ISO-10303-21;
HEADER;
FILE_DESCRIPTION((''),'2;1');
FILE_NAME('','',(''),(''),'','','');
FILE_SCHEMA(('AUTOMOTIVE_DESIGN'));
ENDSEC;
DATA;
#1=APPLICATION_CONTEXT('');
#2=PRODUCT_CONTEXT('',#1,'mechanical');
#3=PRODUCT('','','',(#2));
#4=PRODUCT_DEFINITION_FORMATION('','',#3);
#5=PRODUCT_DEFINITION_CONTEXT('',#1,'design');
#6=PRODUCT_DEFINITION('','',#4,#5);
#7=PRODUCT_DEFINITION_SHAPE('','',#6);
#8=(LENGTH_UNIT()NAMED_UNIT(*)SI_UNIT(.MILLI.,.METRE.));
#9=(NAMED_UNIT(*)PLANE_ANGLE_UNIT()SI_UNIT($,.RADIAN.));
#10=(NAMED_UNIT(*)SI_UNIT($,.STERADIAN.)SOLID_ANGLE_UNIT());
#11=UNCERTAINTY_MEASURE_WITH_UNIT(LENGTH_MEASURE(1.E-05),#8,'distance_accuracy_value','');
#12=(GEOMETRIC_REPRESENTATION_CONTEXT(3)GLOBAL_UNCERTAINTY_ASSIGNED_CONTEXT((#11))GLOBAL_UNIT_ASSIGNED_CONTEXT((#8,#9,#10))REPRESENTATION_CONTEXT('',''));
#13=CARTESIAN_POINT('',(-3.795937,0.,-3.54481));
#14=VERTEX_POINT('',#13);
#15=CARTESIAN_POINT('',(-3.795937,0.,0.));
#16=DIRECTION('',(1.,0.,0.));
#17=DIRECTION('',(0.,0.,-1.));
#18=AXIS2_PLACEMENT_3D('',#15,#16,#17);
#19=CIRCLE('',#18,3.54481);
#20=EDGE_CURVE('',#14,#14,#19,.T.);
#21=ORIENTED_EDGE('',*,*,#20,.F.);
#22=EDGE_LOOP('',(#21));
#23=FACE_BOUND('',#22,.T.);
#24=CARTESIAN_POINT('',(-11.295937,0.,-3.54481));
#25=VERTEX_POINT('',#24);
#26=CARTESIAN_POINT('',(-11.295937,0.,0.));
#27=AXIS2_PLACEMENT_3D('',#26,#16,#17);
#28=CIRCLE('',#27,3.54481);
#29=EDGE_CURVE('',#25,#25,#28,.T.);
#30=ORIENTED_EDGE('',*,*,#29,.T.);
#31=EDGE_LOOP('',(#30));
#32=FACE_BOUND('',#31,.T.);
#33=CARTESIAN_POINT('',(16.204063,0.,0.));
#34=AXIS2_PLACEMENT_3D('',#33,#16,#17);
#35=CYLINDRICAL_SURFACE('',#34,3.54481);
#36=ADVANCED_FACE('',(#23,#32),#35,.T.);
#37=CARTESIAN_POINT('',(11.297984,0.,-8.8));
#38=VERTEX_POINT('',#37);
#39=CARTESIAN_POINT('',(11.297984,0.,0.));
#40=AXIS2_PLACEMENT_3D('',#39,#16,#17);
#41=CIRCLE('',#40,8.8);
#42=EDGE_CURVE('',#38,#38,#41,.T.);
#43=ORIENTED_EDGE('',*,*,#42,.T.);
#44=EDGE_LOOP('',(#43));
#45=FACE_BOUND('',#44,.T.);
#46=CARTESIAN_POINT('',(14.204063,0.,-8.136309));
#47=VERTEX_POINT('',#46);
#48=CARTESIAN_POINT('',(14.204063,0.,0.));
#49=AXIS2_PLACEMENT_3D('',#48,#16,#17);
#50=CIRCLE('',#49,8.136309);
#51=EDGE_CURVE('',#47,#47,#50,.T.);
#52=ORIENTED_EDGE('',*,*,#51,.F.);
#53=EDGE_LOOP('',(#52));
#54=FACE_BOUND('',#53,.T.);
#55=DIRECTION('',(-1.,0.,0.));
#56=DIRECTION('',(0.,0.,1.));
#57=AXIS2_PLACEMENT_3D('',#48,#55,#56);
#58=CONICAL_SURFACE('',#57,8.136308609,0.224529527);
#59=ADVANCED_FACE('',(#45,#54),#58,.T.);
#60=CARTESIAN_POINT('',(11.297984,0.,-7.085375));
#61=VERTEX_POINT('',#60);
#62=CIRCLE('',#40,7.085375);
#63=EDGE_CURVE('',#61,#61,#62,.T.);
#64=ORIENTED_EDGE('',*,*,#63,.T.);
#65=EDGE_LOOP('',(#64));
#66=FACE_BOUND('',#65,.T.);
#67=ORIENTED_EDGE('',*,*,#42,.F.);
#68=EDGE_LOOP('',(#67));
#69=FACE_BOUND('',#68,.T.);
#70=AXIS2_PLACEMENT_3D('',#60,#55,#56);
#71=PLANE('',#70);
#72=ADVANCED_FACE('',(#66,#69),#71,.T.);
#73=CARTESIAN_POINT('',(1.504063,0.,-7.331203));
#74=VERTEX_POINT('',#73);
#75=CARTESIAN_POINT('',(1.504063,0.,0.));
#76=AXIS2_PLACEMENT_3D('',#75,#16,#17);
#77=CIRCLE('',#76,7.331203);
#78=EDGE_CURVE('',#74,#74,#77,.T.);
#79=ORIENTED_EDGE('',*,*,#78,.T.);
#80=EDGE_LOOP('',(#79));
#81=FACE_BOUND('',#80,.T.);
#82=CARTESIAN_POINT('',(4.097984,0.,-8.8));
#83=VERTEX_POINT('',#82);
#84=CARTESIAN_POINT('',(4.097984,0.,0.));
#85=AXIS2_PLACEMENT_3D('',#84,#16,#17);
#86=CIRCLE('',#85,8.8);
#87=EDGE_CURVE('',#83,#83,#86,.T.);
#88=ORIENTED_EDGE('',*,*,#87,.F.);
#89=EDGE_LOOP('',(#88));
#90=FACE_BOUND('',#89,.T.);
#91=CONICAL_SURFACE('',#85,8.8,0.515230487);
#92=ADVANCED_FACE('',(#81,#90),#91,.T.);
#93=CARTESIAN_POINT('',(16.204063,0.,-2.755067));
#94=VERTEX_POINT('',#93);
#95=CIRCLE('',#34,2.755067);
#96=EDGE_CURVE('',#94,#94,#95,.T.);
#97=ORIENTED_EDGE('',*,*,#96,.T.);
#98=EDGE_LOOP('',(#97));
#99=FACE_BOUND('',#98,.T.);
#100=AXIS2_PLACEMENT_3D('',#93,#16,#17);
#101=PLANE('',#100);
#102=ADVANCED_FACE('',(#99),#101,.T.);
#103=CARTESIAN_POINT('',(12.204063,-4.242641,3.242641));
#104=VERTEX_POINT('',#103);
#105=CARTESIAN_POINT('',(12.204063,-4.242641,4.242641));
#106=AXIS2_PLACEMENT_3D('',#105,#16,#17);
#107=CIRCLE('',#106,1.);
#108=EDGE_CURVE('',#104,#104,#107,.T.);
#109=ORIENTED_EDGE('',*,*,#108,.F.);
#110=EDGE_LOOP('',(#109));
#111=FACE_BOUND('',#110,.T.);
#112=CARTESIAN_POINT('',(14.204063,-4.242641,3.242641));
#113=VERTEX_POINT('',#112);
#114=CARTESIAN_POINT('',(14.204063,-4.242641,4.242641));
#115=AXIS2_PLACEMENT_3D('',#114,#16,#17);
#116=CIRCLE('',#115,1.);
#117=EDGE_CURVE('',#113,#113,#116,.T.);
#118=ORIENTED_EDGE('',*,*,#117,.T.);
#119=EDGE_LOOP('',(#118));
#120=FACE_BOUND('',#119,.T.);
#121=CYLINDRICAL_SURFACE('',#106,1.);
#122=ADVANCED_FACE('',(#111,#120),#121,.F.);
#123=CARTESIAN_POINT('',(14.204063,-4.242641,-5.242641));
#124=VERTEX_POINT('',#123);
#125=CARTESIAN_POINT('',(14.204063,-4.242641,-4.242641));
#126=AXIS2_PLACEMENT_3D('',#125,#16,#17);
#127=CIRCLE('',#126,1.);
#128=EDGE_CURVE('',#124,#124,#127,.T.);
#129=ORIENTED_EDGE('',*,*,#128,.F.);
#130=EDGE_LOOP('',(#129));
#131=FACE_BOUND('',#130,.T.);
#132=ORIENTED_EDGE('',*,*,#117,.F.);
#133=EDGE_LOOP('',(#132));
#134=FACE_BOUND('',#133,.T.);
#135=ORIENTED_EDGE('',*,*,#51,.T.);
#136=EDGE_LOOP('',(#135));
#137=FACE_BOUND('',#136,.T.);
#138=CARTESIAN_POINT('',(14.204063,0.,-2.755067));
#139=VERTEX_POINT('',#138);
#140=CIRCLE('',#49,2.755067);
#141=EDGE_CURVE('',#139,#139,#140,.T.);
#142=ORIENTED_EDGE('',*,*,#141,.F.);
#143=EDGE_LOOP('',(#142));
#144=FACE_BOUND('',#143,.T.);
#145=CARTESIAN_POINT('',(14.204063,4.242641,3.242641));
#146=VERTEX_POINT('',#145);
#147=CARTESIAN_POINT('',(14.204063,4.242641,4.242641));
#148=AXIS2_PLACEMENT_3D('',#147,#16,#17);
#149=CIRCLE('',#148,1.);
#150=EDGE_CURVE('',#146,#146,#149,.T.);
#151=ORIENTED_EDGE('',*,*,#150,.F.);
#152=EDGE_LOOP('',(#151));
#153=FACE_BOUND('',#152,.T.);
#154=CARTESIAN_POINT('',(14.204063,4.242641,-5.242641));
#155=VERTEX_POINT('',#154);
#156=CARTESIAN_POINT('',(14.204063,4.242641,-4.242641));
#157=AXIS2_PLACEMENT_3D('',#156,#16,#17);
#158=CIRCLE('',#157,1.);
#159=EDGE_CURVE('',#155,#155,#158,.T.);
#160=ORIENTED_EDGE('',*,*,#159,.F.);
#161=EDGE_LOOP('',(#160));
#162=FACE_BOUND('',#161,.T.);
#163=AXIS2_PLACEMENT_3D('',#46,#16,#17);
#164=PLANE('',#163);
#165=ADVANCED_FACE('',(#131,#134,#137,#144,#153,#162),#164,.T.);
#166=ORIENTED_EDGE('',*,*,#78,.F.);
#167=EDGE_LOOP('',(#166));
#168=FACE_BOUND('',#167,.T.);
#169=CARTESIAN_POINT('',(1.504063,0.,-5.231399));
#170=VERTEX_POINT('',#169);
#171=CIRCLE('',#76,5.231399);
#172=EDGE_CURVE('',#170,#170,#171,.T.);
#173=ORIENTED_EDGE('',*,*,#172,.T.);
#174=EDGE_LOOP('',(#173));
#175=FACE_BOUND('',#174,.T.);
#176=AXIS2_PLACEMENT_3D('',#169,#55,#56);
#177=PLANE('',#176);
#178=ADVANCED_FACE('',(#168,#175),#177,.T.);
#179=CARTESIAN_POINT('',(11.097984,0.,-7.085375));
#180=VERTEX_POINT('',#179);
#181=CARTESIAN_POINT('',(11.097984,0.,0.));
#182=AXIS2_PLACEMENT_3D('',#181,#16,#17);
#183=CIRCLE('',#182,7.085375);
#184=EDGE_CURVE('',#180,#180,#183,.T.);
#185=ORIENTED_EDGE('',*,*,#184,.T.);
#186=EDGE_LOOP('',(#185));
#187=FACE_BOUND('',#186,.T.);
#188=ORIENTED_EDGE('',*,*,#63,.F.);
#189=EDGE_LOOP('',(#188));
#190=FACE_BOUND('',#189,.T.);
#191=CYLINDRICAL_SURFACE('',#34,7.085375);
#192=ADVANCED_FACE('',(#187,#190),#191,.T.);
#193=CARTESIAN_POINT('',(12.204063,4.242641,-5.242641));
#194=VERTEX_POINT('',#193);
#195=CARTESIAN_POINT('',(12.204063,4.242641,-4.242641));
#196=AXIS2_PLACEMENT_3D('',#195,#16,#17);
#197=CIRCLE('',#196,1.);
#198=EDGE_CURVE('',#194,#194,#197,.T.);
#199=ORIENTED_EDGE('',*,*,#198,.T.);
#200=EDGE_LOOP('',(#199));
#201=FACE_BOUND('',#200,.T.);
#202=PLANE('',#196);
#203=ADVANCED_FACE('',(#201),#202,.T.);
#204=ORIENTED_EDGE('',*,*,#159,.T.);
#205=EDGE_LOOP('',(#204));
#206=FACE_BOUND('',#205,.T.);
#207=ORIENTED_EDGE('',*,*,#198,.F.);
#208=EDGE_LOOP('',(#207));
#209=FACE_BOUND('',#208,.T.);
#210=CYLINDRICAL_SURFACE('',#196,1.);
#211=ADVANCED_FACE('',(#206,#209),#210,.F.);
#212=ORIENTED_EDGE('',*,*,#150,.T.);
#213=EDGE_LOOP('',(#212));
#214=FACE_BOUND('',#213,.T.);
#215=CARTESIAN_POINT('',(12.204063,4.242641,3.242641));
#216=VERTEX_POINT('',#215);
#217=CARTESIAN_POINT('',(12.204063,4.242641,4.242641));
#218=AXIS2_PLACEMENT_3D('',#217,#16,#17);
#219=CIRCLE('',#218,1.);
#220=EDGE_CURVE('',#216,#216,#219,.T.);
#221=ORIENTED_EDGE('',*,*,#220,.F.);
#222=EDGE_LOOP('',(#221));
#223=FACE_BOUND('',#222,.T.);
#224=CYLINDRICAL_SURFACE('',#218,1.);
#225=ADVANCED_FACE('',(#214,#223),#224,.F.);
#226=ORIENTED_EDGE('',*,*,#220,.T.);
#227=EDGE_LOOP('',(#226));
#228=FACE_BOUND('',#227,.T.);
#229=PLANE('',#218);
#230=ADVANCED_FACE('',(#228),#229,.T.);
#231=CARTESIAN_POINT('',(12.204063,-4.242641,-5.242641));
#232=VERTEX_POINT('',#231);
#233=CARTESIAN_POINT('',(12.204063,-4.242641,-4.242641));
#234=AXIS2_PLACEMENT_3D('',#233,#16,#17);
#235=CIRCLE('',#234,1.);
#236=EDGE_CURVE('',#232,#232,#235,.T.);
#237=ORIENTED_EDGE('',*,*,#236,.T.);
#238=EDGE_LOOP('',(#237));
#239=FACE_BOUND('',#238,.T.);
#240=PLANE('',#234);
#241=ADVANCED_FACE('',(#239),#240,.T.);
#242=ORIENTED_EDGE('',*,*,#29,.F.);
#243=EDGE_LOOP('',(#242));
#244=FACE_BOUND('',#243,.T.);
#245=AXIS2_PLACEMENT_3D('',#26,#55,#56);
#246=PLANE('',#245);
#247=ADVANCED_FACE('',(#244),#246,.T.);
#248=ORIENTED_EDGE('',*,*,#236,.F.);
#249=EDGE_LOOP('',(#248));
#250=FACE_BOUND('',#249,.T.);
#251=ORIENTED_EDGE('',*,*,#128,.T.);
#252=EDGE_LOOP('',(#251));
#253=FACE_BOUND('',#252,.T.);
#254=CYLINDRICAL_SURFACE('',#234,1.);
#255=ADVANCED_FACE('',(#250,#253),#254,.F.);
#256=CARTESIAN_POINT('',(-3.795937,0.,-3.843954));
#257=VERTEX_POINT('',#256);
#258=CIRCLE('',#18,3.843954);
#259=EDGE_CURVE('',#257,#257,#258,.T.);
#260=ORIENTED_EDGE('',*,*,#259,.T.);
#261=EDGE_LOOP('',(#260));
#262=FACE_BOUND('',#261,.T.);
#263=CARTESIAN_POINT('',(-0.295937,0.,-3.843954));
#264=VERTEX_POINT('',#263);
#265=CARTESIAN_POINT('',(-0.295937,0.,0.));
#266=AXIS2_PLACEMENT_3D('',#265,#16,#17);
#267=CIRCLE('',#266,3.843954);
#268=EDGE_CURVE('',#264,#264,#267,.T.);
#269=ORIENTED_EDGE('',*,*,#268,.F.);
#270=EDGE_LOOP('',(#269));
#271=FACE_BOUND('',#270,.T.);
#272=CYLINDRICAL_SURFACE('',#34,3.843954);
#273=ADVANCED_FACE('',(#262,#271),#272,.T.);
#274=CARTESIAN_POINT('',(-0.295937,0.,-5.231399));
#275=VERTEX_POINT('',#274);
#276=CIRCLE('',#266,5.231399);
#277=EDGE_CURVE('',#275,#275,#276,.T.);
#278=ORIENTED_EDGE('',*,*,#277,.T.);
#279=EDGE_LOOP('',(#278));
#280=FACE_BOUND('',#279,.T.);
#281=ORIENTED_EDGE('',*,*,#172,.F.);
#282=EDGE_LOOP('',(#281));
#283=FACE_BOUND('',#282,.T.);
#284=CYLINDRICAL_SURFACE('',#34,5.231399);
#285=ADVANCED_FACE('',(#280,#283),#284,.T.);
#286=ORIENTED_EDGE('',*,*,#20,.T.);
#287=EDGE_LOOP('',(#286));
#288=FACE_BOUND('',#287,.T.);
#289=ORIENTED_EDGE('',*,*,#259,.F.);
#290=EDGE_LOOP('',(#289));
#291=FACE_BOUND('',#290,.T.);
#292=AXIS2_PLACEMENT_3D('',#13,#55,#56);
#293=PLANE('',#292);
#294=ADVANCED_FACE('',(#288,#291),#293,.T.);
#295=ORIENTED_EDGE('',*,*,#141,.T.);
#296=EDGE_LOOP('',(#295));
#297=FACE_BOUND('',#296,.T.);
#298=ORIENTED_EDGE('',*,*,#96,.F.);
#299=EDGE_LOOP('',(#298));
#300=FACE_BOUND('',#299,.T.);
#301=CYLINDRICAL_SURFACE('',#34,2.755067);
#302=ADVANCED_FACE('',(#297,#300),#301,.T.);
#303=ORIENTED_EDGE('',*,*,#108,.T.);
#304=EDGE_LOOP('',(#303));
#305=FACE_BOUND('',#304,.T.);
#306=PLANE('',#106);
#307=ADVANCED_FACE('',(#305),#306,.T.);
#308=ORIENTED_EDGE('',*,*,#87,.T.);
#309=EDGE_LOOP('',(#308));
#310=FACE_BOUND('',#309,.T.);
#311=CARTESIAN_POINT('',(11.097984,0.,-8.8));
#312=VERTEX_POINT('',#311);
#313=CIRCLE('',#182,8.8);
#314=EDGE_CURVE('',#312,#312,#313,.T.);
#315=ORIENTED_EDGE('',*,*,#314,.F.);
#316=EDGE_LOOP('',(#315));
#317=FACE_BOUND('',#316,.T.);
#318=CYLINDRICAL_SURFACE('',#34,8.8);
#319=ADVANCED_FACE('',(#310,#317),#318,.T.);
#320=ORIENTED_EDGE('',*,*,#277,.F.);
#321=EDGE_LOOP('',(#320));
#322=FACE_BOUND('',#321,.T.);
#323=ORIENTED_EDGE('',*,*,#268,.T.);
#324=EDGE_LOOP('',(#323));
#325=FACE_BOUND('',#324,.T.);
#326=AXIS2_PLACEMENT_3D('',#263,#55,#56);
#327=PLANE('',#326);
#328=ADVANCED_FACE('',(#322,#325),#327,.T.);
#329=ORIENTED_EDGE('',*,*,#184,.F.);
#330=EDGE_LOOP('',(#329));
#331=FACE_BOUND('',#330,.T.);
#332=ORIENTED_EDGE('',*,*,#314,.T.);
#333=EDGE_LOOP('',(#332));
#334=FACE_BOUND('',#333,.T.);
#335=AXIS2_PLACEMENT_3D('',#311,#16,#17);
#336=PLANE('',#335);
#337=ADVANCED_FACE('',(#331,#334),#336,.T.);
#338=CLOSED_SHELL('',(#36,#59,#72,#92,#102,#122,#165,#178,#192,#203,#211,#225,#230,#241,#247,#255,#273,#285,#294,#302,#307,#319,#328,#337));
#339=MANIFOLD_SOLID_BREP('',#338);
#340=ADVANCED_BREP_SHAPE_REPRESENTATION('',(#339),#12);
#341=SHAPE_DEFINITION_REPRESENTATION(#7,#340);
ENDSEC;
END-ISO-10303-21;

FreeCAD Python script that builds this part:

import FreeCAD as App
import Part
import Sketcher
from FreeCAD import Vector
Q = App.Units.Quantity

doc = App.newDocument("Part")
body = doc.addObject("PartDesign::Body", "Body")

# Sketch on XZ plane
sketch1 = body.newObject("Sketcher::SketchObject", "Sketch")
sketch1.AttachmentSupport = (doc.getObject("XZ_Plane"), [""])
sketch1.MapMode = "FlatFace"
sketch1.addGeometry([
    Part.LineSegment(Vector(-0.3, -5.23, 0), Vector(-0.3, -3.84, 0)),  # 0
    Part.LineSegment(Vector(-0.3, -3.84, 0), Vector(-3.8, -3.84, 0)),  # 1
    Part.LineSegment(Vector(-3.8, -3.84, 0), Vector(-3.8, -3.54, 0)),  # 2
    Part.LineSegment(Vector(-3.8, -3.54, 0), Vector(-11.3, -3.54, 0)),  # 3
    Part.LineSegment(Vector(-11.3, -3.54, 0), Vector(-11.3, 0, 0)),  # 4
    Part.LineSegment(Vector(-11.3, 0, 0), Vector(16.2, 0, 0)),  # 5
    Part.LineSegment(Vector(16.2, 0, 0), Vector(16.2, -2.76, 0)),  # 6
    Part.LineSegment(Vector(16.2, -2.76, 0), Vector(14.2, -2.76, 0)),  # 7
    Part.LineSegment(Vector(14.2, -2.76, 0), Vector(14.2, -8.14, 0)),  # 8
    Part.LineSegment(Vector(14.2, -8.14, 0), Vector(11.3, -8.8, 0)),  # 9
    Part.LineSegment(Vector(11.3, -8.8, 0), Vector(11.3, -7.09, 0)),  # 10
    Part.LineSegment(Vector(11.3, -7.09, 0), Vector(11.1, -7.09, 0)),  # 11
    Part.LineSegment(Vector(11.1, -7.09, 0), Vector(11.1, -8.8, 0)),  # 12
    Part.LineSegment(Vector(11.1, -8.8, 0), Vector(4.1, -8.8, 0)),  # 13
    Part.LineSegment(Vector(4.1, -8.8, 0), Vector(1.5, -7.33, 0)),  # 14
    Part.LineSegment(Vector(1.5, -7.33, 0), Vector(1.5, -5.23, 0)),  # 15
    Part.LineSegment(Vector(1.5, -5.23, 0), Vector(-0.3, -5.23, 0)),  # 16
], False)
sketch1.addConstraint([
    Sketcher.Constraint("Coincident", 0, 2, 1, 1),
    Sketcher.Constraint("Coincident", 1, 2, 2, 1),
    Sketcher.Constraint("Coincident", 2, 2, 3, 1),
    Sketcher.Constraint("Coincident", 3, 2, 4, 1),
    Sketcher.Constraint("Coincident", 4, 2, 5, 1),
    Sketcher.Constraint("Coincident", 5, 2, 6, 1),
    Sketcher.Constraint("Coincident", 6, 2, 7, 1),
    Sketcher.Constraint("Coincident", 7, 2, 8, 1),
    Sketcher.Constraint("Coincident", 8, 2, 9, 1),
    Sketcher.Constraint("Coincident", 9, 2, 10, 1),
    Sketcher.Constraint("Coincident", 10, 2, 11, 1),
    Sketcher.Constraint("Coincident", 11, 2, 12, 1),
    Sketcher.Constraint("Coincident", 12, 2, 13, 1),
    Sketcher.Constraint("Coincident", 13, 2, 14, 1),
    Sketcher.Constraint("Coincident", 14, 2, 15, 1),
    Sketcher.Constraint("Coincident", 15, 2, 16, 1),
    Sketcher.Constraint("Coincident", 16, 2, 0, 1),
    Sketcher.Constraint("Vertical", 0),
    Sketcher.Constraint("Horizontal", 1),
    Sketcher.Constraint("Vertical", 2),
    Sketcher.Constraint("Horizontal", 3),
    Sketcher.Constraint("Vertical", 4),
    Sketcher.Constraint("Horizontal", 5),
    Sketcher.Constraint("Vertical", 6),
    Sketcher.Constraint("Horizontal", 7),
    Sketcher.Constraint("Vertical", 8),
    Sketcher.Constraint("Vertical", 10),
    Sketcher.Constraint("Horizontal", 11),
    Sketcher.Constraint("Vertical", 12),
    Sketcher.Constraint("Horizontal", 13),
    Sketcher.Constraint("Vertical", 15),
    Sketcher.Constraint("Horizontal", 16),
    Sketcher.Constraint("PointOnObject", 4, 2, -1),
    Sketcher.Constraint("Horizontal", 9, 2, 12, 2),
    Sketcher.Constraint("Equal", 9, 14),
    Sketcher.Constraint("DistanceX", 7, 2, 7, 1, Q("2 mm")),
    Sketcher.Constraint("DistanceX", 13, 2, 13, 1, Q("7 mm")),
    Sketcher.Constraint("DistanceX", 1, 2, 1, 1, Q("3.5 mm")),
    Sketcher.Constraint("DistanceX", 3, 2, 3, 1, Q("7.5 mm")),
    Sketcher.Constraint("DistanceX", 5, 1, 5, 2, Q("27.5 mm")),
    Sketcher.Constraint("DistanceX", 11, 2, 11, 1, Q("0.2 mm")),
    Sketcher.Constraint("DistanceX", 16, 2, 16, 1, Q("1.8 mm")),
    Sketcher.Constraint("DistanceY", 9, 2, -1, 1, Q("8.8 mm")),
    Sketcher.Constraint("DistanceY", 4, 1, 4, 2, Q("3.54481 mm")),
    Sketcher.Constraint("DistanceY", 8, 2, 8, 1, Q("5.381242 mm")),
    Sketcher.Constraint("DistanceY", 15, 2, -1, 1, Q("5.231399 mm")),
    Sketcher.Constraint("DistanceY", 0, 1, 0, 2, Q("1.387445 mm")),
    Sketcher.Constraint("DistanceY", 6, 2, 6, 1, Q("2.755067 mm")),
    Sketcher.Constraint("DistanceY", 10, 1, 10, 2, Q("1.714625 mm")),
    Sketcher.Constraint("DistanceY", 15, 1, 15, 2, Q("2.099804 mm")),
    Sketcher.Constraint("DistanceX", 0, 2, -1, 1, Q("0.295937 mm")),
])
revolution = body.newObject("PartDesign::Revolution", "Revolution")
revolution.Profile = sketch1
revolution.ReferenceAxis = (sketch1, ["H_Axis"])
revolution.Angle = 360

# Sketch on YZ plane
sketch2 = body.newObject("Sketcher::SketchObject", "Sketch001")
sketch2.AttachmentSupport = (doc.getObject("YZ_Plane"), [""])
sketch2.MapMode = "FlatFace"
sketch2.AttachmentOffset = App.Placement(Vector(0, 0, 14.204063), App.Rotation())
sketch2.addGeometry([
    Part.Circle(Vector(4.2, -4.2, 0), Vector(0, 0, 1), 1),
    Part.Circle(Vector(-4.2, -4.2, 0), Vector(0, 0, 1), 1),
    Part.Circle(Vector(-4.2, 4.2, 0), Vector(0, 0, 1), 1),
    Part.Circle(Vector(4.2, 4.2, 0), Vector(0, 0, 1), 1),
], False)
sketch2.addConstraint([
    Sketcher.Constraint("Equal", 0, 1),
    Sketcher.Constraint("Equal", 1, 2),
    Sketcher.Constraint("Equal", 2, 3),
    Sketcher.Constraint("Symmetric", 0, 3, 2, 3, -1, 1),
    Sketcher.Constraint("Symmetric", 1, 3, 3, 3, -1, 1),
    Sketcher.Constraint("Symmetric", 0, 3, 1, 3, -2),
    Sketcher.Constraint("Diameter", 0, Q("2 mm")),
    Sketcher.Constraint("DistanceX", -1, 1, 0, 3, Q("4.242641 mm")),
    Sketcher.Constraint("DistanceY", 0, 3, -1, 1, Q("4.242641 mm")),
])
pocket1 = body.newObject("PartDesign::Pocket", "Pocket")
pocket1.Profile = sketch2
pocket1.Length = 2

doc.recompute()
